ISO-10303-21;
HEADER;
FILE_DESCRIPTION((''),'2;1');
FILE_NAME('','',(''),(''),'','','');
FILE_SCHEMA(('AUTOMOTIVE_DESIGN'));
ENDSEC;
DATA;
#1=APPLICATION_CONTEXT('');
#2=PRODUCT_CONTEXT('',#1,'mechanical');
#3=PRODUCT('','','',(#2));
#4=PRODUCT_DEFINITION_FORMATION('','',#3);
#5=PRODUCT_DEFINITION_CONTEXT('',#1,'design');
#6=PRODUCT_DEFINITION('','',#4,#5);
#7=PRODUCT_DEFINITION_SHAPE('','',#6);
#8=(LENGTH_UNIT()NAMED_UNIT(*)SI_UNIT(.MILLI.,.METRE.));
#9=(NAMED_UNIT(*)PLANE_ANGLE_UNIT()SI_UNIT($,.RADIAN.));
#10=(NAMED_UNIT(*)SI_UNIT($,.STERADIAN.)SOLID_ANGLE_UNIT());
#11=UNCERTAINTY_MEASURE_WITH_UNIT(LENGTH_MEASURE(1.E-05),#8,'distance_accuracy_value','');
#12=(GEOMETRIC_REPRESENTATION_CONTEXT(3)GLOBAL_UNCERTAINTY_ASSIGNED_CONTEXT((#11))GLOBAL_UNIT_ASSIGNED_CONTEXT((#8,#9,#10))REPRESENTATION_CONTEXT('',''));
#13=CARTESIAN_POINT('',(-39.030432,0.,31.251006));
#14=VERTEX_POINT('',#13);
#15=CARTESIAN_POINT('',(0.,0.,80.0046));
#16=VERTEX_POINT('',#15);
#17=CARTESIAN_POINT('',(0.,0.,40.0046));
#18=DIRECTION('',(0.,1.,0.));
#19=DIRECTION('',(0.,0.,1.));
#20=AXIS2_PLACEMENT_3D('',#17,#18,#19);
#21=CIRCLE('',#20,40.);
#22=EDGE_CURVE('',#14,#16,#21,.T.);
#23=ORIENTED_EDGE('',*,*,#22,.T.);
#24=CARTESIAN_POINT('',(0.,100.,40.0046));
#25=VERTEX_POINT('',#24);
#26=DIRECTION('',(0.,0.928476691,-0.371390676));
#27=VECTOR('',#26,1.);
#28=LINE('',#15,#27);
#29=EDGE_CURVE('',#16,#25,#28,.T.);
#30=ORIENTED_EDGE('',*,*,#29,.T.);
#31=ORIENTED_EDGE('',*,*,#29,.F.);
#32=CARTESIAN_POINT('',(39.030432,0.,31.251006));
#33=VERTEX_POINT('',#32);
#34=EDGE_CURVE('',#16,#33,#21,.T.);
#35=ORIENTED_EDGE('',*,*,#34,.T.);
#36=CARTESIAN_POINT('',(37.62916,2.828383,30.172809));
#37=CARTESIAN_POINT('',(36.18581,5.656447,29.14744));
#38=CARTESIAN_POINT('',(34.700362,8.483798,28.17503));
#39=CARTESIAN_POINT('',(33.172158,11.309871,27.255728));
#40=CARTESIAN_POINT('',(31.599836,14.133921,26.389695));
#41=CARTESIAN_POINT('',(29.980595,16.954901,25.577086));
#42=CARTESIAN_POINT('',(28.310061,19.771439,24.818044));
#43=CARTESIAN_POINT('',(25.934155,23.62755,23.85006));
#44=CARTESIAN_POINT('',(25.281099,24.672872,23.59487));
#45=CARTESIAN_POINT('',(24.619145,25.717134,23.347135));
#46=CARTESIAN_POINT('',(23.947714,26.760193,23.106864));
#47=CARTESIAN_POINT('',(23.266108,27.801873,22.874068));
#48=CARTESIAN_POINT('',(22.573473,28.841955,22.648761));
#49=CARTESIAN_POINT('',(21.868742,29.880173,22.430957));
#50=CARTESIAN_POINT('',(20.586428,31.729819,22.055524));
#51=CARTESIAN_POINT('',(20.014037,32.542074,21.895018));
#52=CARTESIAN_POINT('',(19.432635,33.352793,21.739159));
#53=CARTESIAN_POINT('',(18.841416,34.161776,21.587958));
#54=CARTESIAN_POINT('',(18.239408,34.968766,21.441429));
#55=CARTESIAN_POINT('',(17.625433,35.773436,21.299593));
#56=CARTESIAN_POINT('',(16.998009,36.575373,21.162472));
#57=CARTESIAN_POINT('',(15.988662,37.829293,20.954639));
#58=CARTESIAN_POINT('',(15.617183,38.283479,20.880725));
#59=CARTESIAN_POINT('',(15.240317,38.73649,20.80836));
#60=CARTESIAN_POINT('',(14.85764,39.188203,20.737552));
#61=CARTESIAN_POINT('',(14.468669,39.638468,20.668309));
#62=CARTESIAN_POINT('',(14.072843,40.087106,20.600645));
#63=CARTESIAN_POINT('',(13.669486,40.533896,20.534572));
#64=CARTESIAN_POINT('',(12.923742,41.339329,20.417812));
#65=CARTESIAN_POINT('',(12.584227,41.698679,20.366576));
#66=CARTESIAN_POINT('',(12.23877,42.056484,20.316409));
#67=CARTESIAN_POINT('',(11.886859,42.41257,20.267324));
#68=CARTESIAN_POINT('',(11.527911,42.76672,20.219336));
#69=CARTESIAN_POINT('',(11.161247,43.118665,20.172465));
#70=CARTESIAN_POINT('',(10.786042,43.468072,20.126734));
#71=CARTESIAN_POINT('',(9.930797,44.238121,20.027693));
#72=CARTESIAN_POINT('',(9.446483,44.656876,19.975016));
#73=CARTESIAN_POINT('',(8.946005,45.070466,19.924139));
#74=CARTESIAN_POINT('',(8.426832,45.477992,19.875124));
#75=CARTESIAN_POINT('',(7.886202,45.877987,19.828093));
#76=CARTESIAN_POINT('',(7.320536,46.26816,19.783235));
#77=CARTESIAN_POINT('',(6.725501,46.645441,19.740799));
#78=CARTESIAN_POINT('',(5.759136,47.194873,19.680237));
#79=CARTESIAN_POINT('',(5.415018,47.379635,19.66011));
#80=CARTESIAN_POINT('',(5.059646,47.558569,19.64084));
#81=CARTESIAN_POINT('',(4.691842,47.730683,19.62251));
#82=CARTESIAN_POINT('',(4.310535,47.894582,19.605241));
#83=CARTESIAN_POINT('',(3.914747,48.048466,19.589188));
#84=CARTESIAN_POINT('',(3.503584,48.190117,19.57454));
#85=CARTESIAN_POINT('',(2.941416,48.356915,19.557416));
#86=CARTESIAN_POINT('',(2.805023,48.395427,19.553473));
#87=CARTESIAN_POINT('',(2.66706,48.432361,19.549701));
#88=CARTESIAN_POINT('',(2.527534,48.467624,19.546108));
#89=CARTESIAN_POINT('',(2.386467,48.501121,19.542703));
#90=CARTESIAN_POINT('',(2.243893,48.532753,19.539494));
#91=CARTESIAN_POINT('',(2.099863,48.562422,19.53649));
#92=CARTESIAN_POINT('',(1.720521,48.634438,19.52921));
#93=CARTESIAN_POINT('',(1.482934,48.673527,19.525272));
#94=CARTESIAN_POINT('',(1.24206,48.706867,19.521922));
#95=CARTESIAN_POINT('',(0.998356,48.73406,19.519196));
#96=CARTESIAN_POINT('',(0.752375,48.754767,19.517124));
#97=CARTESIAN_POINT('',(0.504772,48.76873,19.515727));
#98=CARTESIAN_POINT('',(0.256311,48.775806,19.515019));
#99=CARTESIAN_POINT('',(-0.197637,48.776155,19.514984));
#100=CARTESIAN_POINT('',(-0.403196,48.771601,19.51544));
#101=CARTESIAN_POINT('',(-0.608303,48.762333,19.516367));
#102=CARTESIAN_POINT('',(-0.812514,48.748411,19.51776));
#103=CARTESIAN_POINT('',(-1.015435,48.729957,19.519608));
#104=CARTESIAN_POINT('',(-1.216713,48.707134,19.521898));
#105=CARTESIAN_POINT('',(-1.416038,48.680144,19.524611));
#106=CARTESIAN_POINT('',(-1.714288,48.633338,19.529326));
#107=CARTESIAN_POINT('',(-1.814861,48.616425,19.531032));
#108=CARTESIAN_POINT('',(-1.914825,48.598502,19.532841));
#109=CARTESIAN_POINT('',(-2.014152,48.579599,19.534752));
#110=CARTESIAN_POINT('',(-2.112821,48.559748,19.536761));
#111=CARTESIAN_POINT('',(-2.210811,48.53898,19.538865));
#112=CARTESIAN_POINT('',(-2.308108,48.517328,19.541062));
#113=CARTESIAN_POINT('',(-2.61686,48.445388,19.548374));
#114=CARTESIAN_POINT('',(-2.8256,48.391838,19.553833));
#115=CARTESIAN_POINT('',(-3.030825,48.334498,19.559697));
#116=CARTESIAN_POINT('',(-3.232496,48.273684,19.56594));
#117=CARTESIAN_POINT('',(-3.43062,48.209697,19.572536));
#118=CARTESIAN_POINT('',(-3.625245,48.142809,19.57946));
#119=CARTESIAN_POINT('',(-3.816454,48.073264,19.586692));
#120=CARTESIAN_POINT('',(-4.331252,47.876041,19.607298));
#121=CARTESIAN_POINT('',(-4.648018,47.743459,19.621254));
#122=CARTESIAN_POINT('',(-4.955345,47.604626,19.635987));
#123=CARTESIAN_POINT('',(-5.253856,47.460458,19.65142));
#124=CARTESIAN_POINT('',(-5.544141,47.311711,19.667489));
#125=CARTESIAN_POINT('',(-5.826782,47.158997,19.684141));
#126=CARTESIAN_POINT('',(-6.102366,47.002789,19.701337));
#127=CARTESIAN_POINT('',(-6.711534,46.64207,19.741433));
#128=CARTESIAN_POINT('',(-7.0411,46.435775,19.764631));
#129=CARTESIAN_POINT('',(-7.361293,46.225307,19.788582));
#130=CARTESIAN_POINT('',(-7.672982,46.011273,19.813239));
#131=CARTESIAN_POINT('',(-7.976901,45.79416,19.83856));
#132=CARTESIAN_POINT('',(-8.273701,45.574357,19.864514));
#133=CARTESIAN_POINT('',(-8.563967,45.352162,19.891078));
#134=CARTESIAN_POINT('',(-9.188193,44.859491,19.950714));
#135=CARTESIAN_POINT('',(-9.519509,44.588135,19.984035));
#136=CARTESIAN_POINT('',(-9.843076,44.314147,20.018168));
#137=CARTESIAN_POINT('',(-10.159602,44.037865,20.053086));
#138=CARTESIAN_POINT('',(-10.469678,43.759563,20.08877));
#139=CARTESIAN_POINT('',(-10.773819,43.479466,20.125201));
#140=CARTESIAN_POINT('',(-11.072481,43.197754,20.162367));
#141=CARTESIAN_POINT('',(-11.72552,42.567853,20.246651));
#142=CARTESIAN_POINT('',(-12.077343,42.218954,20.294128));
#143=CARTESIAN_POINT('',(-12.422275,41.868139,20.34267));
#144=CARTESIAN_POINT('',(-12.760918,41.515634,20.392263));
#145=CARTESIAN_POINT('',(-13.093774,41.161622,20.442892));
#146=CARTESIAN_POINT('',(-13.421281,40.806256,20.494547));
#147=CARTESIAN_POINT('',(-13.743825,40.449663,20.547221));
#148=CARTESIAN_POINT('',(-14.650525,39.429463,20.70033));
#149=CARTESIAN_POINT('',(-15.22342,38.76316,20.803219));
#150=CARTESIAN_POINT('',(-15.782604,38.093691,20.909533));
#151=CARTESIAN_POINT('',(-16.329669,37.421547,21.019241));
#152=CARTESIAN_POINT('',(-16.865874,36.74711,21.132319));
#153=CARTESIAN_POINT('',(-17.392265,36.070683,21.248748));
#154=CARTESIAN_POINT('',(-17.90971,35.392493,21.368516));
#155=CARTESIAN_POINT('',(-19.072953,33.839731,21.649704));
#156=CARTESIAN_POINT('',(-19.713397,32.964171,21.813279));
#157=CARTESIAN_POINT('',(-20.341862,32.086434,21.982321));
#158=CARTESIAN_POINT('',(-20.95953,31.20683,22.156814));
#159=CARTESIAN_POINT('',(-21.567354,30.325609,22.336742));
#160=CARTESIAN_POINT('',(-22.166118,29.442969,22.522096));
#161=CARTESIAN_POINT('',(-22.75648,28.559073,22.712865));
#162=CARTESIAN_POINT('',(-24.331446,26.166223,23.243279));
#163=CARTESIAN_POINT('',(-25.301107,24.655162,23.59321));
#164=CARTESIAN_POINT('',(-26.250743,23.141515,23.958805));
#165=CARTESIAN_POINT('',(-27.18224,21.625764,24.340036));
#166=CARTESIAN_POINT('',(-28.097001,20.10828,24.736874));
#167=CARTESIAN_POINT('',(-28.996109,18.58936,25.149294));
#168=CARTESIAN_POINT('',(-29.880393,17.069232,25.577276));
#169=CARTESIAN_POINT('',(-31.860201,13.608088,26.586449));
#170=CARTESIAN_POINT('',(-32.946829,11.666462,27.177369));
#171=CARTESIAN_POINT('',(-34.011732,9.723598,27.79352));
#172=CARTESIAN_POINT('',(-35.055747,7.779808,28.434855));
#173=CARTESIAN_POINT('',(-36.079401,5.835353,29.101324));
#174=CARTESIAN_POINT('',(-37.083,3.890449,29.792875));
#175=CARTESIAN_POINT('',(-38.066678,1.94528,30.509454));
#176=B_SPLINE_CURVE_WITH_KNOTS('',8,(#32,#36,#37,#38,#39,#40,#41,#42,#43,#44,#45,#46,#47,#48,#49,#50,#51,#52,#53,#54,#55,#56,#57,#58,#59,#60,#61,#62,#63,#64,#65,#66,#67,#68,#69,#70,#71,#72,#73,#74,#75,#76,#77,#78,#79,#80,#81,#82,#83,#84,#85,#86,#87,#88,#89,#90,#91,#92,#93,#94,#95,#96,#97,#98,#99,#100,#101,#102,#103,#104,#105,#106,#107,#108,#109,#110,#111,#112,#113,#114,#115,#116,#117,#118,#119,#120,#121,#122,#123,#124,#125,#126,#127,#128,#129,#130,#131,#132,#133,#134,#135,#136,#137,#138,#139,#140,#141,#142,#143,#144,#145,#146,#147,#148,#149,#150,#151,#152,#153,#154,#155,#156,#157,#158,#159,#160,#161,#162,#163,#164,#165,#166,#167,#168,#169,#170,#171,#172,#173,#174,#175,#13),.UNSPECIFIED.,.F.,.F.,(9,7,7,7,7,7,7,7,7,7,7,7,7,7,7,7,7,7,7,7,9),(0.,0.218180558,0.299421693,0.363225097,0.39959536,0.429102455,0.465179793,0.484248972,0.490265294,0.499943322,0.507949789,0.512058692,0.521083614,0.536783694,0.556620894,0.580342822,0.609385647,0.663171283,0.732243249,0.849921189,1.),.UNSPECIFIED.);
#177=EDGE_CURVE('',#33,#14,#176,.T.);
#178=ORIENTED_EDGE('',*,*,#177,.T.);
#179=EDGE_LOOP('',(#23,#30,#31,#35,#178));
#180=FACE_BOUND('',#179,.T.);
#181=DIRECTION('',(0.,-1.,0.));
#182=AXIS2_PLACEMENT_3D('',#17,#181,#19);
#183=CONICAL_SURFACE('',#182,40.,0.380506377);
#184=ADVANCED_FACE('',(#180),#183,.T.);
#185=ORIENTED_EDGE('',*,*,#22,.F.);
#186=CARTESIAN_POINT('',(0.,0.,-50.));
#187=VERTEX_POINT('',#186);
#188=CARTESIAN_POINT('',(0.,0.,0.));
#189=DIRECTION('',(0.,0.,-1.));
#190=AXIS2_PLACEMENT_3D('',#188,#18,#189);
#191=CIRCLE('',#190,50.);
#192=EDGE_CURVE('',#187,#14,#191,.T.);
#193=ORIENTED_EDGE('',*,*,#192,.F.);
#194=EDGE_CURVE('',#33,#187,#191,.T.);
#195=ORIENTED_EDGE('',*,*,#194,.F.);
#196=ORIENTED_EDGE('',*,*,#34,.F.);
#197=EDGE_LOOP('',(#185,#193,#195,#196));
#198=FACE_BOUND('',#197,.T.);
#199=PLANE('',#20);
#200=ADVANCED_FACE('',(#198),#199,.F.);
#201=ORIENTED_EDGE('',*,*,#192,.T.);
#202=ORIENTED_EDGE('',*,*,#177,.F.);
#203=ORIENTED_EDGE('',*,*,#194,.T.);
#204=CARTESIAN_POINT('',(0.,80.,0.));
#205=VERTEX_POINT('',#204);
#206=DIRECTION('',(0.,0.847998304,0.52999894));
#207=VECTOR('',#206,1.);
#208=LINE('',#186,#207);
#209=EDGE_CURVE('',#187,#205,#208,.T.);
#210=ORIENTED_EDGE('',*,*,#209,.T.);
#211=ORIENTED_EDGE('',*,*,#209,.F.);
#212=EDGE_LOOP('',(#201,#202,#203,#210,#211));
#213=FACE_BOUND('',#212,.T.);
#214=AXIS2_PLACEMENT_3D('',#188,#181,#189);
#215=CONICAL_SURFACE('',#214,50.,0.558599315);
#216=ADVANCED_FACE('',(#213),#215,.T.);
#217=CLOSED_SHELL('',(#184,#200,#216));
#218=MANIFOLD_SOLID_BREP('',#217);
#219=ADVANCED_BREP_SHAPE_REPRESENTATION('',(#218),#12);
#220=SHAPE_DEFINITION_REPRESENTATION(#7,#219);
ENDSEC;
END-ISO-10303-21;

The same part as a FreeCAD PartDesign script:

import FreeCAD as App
import Part
import Sketcher
from FreeCAD import Vector
Q = App.Units.Quantity


def add_polygon(sketch, points):
    """Adds a closed chain of lines whose ends are joined by coincident constraints."""
    first, n = sketch.GeometryCount, len(points)
    for a, b in zip(points, points[1:] + points[:1]):
        sketch.addGeometry(Part.LineSegment(App.Vector(*a, 0), App.Vector(*b, 0)), False)
    for i in range(n):
        sketch.addConstraint(Sketcher.Constraint("Coincident", first + i, 2, first + (i + 1) % n, 1))

doc = App.newDocument("Part")
body = doc.addObject("PartDesign::Body", "Body")

sketch1 = body.newObject("Sketcher::SketchObject", "Sketch")
sketch1.AttachmentSupport = (doc.getObject("YZ_Plane"), [""])
sketch1.MapMode = "FlatFace"
add_polygon(sketch1, [(0, 80), (0, 40), (100, 40)])
sketch1.addGeometry(Part.LineSegment(Vector(0, 40, 0), Vector(100, 40, 0)), True)
sketch1.addConstraint(Sketcher.Constraint("Vertical", 0))
sketch1.addConstraint(Sketcher.Constraint("Horizontal", 1))
sketch1.addConstraint(Sketcher.Constraint("Horizontal", 3))
sketch1.addConstraint(Sketcher.Constraint("Coincident", 3, 1, 0, 2))
sketch1.addConstraint(Sketcher.Constraint("PointOnObject", 0, 2, -2))
sketch1.addConstraint(Sketcher.Constraint("Equal", 1, 3))
sketch1.addConstraint(Sketcher.Constraint("DistanceX", 1, 1, 1, 2, Q("3.937 in")))
sketch1.addConstraint(Sketcher.Constraint("DistanceY", 0, 2, 0, 1, Q("1.5748 in")))
sketch1.addConstraint(Sketcher.Constraint("DistanceY", -1, 1, 0, 2, Q("40.0046 mm")))
revolution = body.newObject("PartDesign::Revolution", "Revolution")
revolution.Profile = sketch1
revolution.ReferenceAxis = (sketch1, ["Axis0"])
revolution.Angle = 360

sketch2 = body.newObject("Sketcher::SketchObject", "Sketch001")
sketch2.AttachmentSupport = (doc.getObject("YZ_Plane"), [""])
sketch2.MapMode = "FlatFace"
add_polygon(sketch2, [(80, 0), (0, 0), (0, -50)])
sketch2.addConstraint(Sketcher.Constraint("Horizontal", 0))
sketch2.addConstraint(Sketcher.Constraint("Vertical", 1))
sketch2.addConstraint(Sketcher.Constraint("Coincident", 0, 2, -1, 1))
sketch2.addConstraint(Sketcher.Constraint("DistanceX", 0, 2, 0, 1, Q("3.1496 in")))
sketch2.addConstraint(Sketcher.Constraint("DistanceY", 1, 2, 1, 1, Q("1.9685 in")))
revolution2 = body.newObject("PartDesign::Revolution", "Revolution001")
revolution2.Profile = sketch2
revolution2.ReferenceAxis = (sketch2, ["H_Axis"])
revolution2.Angle = 360

doc.recompute()
